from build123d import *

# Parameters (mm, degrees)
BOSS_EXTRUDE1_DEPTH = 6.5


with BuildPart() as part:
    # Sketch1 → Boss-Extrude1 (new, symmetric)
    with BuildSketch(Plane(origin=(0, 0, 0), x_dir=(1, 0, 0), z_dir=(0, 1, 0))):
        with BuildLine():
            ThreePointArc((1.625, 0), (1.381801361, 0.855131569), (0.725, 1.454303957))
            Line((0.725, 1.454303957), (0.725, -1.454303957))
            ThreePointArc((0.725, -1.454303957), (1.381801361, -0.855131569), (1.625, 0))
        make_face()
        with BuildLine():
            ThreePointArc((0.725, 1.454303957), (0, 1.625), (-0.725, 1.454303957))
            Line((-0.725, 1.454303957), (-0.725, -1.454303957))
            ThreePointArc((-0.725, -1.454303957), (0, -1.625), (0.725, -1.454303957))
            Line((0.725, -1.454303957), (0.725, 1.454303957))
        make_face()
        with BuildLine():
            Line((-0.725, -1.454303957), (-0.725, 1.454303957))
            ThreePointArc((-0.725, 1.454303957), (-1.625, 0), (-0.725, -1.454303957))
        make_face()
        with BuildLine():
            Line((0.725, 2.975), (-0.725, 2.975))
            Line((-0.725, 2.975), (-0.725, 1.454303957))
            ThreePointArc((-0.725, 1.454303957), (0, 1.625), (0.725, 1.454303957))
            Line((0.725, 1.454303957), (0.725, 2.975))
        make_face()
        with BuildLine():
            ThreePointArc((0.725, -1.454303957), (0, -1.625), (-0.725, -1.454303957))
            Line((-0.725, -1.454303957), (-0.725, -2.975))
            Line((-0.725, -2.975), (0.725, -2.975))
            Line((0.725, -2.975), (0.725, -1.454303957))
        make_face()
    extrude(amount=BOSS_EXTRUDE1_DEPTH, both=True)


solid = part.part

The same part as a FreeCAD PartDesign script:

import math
import FreeCAD as App
import Part
import Sketcher
Q = App.Units.Quantity

doc = App.newDocument("Part")
params = doc.addObject("Spreadsheet::Sheet", "Params")
for row, (alias, value) in enumerate([
    ("sketch1_width", "1.45 mm"),
    ("pad1_length", "13 mm"),
], start=1):
    params.set(f"A{row}", alias)
    params.set(f"B{row}", "=" + value)
    params.setAlias(f"B{row}", alias)

body = doc.addObject("PartDesign::Body", "Body")

sketch1 = body.newObject("Sketcher::SketchObject", "Sketch")
sketch1.AttachmentSupport = (doc.getObject("XZ_Plane"), [""])
sketch1.MapMode = "FlatFace"
sketch1.addGeometry([
    Part.ArcOfCircle(Part.Circle(App.Vector(0, 0, 0), App.Vector(0, 0, 1), 1.6), math.radians(-64), math.radians(0)),
    Part.LineSegment(App.Vector(0.7, -1.5, 0), App.Vector(0.7, -3, 0)),
    Part.LineSegment(App.Vector(0.7, -3, 0), App.Vector(-0.7, -3, 0)),
    Part.LineSegment(App.Vector(-0.7, -3, 0), App.Vector(-0.7, -1.5, 0)),
    Part.ArcOfCircle(Part.Circle(App.Vector(0, 0, 0), App.Vector(0, 0, 1), 1.6), math.radians(116), math.radians(244)),
    Part.LineSegment(App.Vector(-0.7, 1.5, 0), App.Vector(-0.7, 3, 0)),
    Part.LineSegment(App.Vector(-0.7, 3, 0), App.Vector(0.7, 3, 0)),
    Part.LineSegment(App.Vector(0.7, 3, 0), App.Vector(0.7, 1.5, 0)),
    Part.ArcOfCircle(Part.Circle(App.Vector(0, 0, 0), App.Vector(0, 0, 1), 1.6), math.radians(0), math.radians(64)),
], False)
sketch1.addConstraint([
    Sketcher.Constraint("Coincident", 0, 1, 1, 1),
    Sketcher.Constraint("Coincident", 1, 2, 2, 1),
    Sketcher.Constraint("Coincident", 2, 2, 3, 1),
    Sketcher.Constraint("Coincident", 3, 2, 4, 2),
    Sketcher.Constraint("Coincident", 4, 1, 5, 1),
    Sketcher.Constraint("Coincident", 5, 2, 6, 1),
    Sketcher.Constraint("Coincident", 6, 2, 7, 1),
    Sketcher.Constraint("Coincident", 7, 2, 8, 2),
    Sketcher.Constraint("Tangent", 8, 1, 0, 2),
    Sketcher.Constraint("Vertical", 1),
    Sketcher.Constraint("Horizontal", 2),
    Sketcher.Constraint("Vertical", 3),
    Sketcher.Constraint("Vertical", 5),
    Sketcher.Constraint("Horizontal", 6),
    Sketcher.Constraint("Vertical", 7),
    Sketcher.Constraint("Coincident", 0, 3, -1, 1),
    Sketcher.Constraint("Coincident", 4, 3, -1, 1),
    Sketcher.Constraint("Equal", 0, 4),
    Sketcher.Constraint("Equal", 4, 8),
    Sketcher.Constraint("Symmetric", 1, 2, 5, 2, -1, 1),
    Sketcher.Constraint("PointOnObject", 8, 1, -1),
    Sketcher.Constraint("Horizontal", 0, 1, 3, 2),
    Sketcher.Constraint("Horizontal", 4, 1, 7, 2),
    Sketcher.Constraint("Radius", 0, Q("1.625 mm")),
    Sketcher.Constraint("DistanceX", 2, 2, 2, 1, Q("1.45 mm")),
    Sketcher.Constraint("DistanceY", 1, 2, -1, 1, Q("2.975 mm")),
])
sketch1.setExpression("Constraints[24]", "Params.sketch1_width")
pad1 = body.newObject("PartDesign::Pad", "Pad")
pad1.Profile = sketch1
pad1.setExpression("Length", "Params.pad1_length")
pad1.Midplane = True

doc.recompute()
